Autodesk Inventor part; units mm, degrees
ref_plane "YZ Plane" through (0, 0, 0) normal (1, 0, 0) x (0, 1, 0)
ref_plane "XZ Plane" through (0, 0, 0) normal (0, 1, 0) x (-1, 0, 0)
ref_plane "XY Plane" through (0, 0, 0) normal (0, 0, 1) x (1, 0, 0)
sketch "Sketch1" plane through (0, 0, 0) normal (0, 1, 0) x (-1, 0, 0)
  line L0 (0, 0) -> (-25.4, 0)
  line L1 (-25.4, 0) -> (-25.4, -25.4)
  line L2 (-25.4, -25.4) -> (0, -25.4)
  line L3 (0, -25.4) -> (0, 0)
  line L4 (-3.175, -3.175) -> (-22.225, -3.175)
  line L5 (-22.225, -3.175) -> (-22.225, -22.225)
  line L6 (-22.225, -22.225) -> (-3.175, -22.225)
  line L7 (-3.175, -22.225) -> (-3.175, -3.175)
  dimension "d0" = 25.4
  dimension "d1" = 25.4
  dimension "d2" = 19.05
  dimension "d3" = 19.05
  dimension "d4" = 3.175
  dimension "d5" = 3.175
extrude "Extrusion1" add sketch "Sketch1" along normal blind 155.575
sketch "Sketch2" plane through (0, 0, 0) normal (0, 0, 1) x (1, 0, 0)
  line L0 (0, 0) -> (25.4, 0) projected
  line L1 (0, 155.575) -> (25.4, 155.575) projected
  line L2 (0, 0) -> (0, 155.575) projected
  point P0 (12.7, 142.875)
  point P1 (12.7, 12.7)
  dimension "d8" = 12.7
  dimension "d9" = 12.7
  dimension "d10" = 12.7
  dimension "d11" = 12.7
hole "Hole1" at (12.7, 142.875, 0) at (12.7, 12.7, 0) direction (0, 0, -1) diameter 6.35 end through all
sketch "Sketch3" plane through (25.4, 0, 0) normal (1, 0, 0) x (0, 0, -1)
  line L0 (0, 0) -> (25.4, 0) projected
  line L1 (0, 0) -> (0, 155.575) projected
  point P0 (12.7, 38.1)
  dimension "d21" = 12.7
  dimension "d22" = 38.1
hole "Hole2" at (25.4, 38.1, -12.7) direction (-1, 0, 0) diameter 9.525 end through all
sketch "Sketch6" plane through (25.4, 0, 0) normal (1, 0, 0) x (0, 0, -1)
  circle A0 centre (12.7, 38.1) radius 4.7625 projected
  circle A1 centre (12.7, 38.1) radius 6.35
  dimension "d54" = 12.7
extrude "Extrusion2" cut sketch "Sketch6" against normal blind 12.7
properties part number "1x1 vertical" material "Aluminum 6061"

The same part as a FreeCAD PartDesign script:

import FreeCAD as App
import Part
import Sketcher
from FreeCAD import Vector
Q = App.Units.Quantity


def add_polygon(sketch, points):
    """Adds a closed chain of lines whose ends are joined by coincident constraints."""
    first, n = sketch.GeometryCount, len(points)
    for a, b in zip(points, points[1:] + points[:1]):
        sketch.addGeometry(Part.LineSegment(App.Vector(*a, 0), App.Vector(*b, 0)), False)
    for i in range(n):
        sketch.addConstraint(Sketcher.Constraint("Coincident", first + i, 2, first + (i + 1) % n, 1))

doc = App.newDocument("Part")
body = doc.addObject("PartDesign::Body", "Body")

# Sketch on XZ plane
sketch1 = body.newObject("Sketcher::SketchObject", "Sketch")
sketch1.AttachmentSupport = (doc.getObject("XZ_Plane"), [""])
sketch1.MapMode = "FlatFace"
add_polygon(sketch1, [(0, -25), (0, 0), (25, 0), (25, -25)])  # lines 0-3
add_polygon(sketch1, [(22, -3), (3, -3), (3, -22), (22, -22)])  # lines 4-7
sketch1.addConstraint([
    Sketcher.Constraint("Vertical", 0),
    Sketcher.Constraint("Horizontal", 1),
    Sketcher.Constraint("Vertical", 2),
    Sketcher.Constraint("Horizontal", 3),
    Sketcher.Constraint("Horizontal", 4),
    Sketcher.Constraint("Vertical", 5),
    Sketcher.Constraint("Horizontal", 6),
    Sketcher.Constraint("Vertical", 7),
    Sketcher.Constraint("Coincident", 0, 2, -1, 1),
    Sketcher.Constraint("Equal", 3, 0),
    Sketcher.Constraint("Equal", 6, 5),
    Sketcher.Constraint("DistanceX", 1, 1, 1, 2, Q("1 in")),
    Sketcher.Constraint("DistanceX", 4, 2, 4, 1, Q("0.75 in")),
    Sketcher.Constraint("DistanceX", -1, 1, 4, 2, Q("0.125 in")),
    Sketcher.Constraint("DistanceY", 4, 2, -1, 1, Q("0.125 in")),
])
pad1 = body.newObject("PartDesign::Pad", "Pad")
pad1.Profile = sketch1
pad1.Length = Q("6.125 in")
pad1.Reversed = True

# Sketch on XY plane
sketch2 = body.newObject("Sketcher::SketchObject", "Sketch001")
sketch2.AttachmentSupport = (doc.getObject("XY_Plane"), [""])
sketch2.MapMode = "FlatFace"
sketch2.addGeometry([
    Part.Circle(Vector(12.7, 142.9, 0), Vector(0, 0, 1), 3.2),
    Part.Circle(Vector(12.7, 12.7, 0), Vector(0, 0, 1), 3.2),
], False)
sketch2.addConstraint([
    Sketcher.Constraint("Equal", 0, 1),
    Sketcher.Constraint("Vertical", 0, 3, 1, 3),
    Sketcher.Constraint("Diameter", 0, Q("0.25 in")),
    Sketcher.Constraint("DistanceX", -1, 1, 0, 3, Q("0.5 in")),
    Sketcher.Constraint("DistanceY", -1, 1, 1, 3, Q("0.5 in")),
    Sketcher.Constraint("DistanceY", -1, 1, 0, 3, Q("5.625 in")),
])
doc.recompute()
hole = body.newObject("PartDesign::Hole", "Hole")
hole.Profile = sketch2
hole.ThreadType = "None"
hole.Diameter = Q("0.25 in")
hole.DepthType = "ThroughAll"

# Sketch on YZ plane
sketch3 = body.newObject("Sketcher::SketchObject", "Sketch002")
sketch3.AttachmentSupport = (doc.getObject("YZ_Plane"), [""])
sketch3.MapMode = "FlatFace"
sketch3.AttachmentOffset = App.Placement(Vector(0, 0, 1 * 25.4), App.Rotation())
sketch3.addGeometry(Part.Circle(Vector(38.1, -12.7, 0), Vector(0, 0, 1), 4.8), False)
sketch3.addConstraint([
    Sketcher.Constraint("Diameter", 0, Q("0.375 in")),
    Sketcher.Constraint("DistanceX", -1, 1, 0, 3, Q("1.5 in")),
    Sketcher.Constraint("DistanceY", 0, 3, -1, 1, Q("0.5 in")),
])
doc.recompute()
hole2 = body.newObject("PartDesign::Hole", "Hole001")
hole2.Profile = sketch3
hole2.ThreadType = "None"
hole2.Diameter = Q("0.375 in")
hole2.DepthType = "ThroughAll"

# Sketch on YZ plane
sketch4 = body.newObject("Sketcher::SketchObject", "Sketch003")
sketch4.AttachmentSupport = (doc.getObject("YZ_Plane"), [""])
sketch4.MapMode = "FlatFace"
sketch4.AttachmentOffset = App.Placement(Vector(0, 0, 1 * 25.4), App.Rotation())
sketch4.addGeometry([
    Part.Circle(Vector(38.1, -12.7, 0), Vector(0, 0, 1), 6.3),
    Part.Circle(Vector(38.1, -12.7, 0), Vector(0, 0, 1), 4.8),
], False)
sketch4.addConstraint([
    Sketcher.Constraint("Coincident", 1, 3, 0, 3),
    Sketcher.Constraint("Diameter", 0, Q("0.5 in")),
    Sketcher.Constraint("DistanceY", 0, 3, -1, 1, Q("0.5 in")),
    Sketcher.Constraint("Diameter", 1, Q("0.375 in")),
    Sketcher.Constraint("DistanceX", -1, 1, 0, 3, Q("1.5 in")),
])
pocket1 = body.newObject("PartDesign::Pocket", "Pocket")
pocket1.Profile = sketch4
pocket1.Length = Q("0.5 in")

doc.recompute()
